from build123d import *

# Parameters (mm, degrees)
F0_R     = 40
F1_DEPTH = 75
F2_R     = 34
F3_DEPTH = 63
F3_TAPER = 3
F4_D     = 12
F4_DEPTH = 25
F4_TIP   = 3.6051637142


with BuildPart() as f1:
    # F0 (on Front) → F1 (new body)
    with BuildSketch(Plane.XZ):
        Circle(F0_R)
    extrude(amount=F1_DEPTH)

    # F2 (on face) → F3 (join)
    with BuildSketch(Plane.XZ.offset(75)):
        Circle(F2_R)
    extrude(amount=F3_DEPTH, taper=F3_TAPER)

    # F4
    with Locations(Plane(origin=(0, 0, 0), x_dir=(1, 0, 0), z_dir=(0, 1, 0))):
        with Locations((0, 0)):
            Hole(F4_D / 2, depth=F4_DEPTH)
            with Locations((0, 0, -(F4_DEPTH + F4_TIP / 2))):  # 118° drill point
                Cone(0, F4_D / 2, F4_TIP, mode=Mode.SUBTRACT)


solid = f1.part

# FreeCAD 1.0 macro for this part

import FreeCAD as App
import Part
import Sketcher

V = App.Vector
Q = App.Units.Quantity

doc = App.newDocument("Part")
body = doc.addObject("PartDesign::Body", "Body")

sketch1 = body.newObject("Sketcher::SketchObject", "Sketch")
sketch1.AttachmentSupport = (doc.getObject("XZ_Plane"), [""])
sketch1.MapMode = "FlatFace"
sketch1.addGeometry(Part.Circle(V(0, 0, 0), V(0, 0, 1), 40), False)
sketch1.addConstraint([
    Sketcher.Constraint("Coincident", 0, 3, -1, 1),
    Sketcher.Constraint("Diameter", 0, Q("80 mm")),
])
pad1 = body.newObject("PartDesign::Pad", "Pad")
pad1.Profile = sketch1
pad1.Length = 75

sketch2 = body.newObject("Sketcher::SketchObject", "Sketch001")
sketch2.AttachmentSupport = (doc.getObject("XZ_Plane"), [""])
sketch2.MapMode = "FlatFace"
sketch2.AttachmentOffset = App.Placement(V(0, 0, 75), App.Rotation())
sketch2.addGeometry(Part.Circle(V(0, 0, 0), V(0, 0, 1), 34), False)
sketch2.addConstraint([
    Sketcher.Constraint("Coincident", 0, 3, -1, 1),
    Sketcher.Constraint("Diameter", 0, Q("68 mm")),
])
pad2 = body.newObject("PartDesign::Pad", "Pad001")
pad2.Profile = sketch2
pad2.Length = 63
pad2.TaperAngle = -3

sketch3 = body.newObject("Sketcher::SketchObject", "Sketch002")
sketch3.AttachmentSupport = (doc.getObject("XZ_Plane"), [""])
sketch3.MapMode = "FlatFace"
sketch3.addGeometry(Part.Circle(V(0, 0, 0), V(0, 0, 1), 6), False)
sketch3.addConstraint([
    Sketcher.Constraint("Coincident", 0, 3, -1, 1),
    Sketcher.Constraint("Diameter", 0, Q("12 mm")),
])
doc.recompute()
hole = body.newObject("PartDesign::Hole", "Hole")
hole.Profile = sketch3
hole.ThreadType = "None"
hole.Diameter = 12
hole.DepthType = "Dimension"
hole.Depth = 25
hole.DrillPoint = "Angled"
hole.DrillPointAngle = 118
hole.Reversed = True

doc.recompute()
